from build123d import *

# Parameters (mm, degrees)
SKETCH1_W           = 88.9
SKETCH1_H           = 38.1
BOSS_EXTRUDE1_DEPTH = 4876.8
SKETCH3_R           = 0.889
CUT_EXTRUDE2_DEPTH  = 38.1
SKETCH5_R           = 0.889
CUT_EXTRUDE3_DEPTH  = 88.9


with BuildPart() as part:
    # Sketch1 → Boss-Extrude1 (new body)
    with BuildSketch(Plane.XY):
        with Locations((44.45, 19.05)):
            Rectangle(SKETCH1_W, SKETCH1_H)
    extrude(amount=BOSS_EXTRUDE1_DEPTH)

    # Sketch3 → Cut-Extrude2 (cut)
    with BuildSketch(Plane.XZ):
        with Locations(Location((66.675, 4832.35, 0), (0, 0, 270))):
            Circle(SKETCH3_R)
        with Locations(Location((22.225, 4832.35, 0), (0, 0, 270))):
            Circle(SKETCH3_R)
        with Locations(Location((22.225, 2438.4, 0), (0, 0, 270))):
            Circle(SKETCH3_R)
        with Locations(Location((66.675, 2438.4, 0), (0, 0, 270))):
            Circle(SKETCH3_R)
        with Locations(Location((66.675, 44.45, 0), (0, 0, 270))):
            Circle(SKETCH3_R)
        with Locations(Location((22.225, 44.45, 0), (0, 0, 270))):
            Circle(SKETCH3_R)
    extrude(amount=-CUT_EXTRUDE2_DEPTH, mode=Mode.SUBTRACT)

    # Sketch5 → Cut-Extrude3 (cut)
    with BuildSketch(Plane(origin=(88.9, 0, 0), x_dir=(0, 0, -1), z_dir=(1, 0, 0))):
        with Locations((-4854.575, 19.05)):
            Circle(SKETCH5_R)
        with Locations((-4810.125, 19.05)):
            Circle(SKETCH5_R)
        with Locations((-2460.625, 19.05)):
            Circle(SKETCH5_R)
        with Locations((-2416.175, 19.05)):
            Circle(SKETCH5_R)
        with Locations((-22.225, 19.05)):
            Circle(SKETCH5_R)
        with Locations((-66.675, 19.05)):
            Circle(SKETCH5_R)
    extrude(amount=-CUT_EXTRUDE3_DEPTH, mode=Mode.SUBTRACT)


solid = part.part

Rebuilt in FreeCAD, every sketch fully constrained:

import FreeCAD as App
import Part
import Sketcher
from FreeCAD import Vector
Q = App.Units.Quantity

doc = App.newDocument("Part")
body = doc.addObject("PartDesign::Body", "Body")

# Sketch on XY plane
sketch1 = body.newObject("Sketcher::SketchObject", "Sketch")
sketch1.AttachmentSupport = (doc.getObject("XY_Plane"), [""])
sketch1.MapMode = "FlatFace"
sketch1.addGeometry(Part.LineSegment(Vector(0, 38.1, 0), Vector(0, 0, 0)), False)
sketch1.addGeometry(Part.LineSegment(Vector(0, 0, 0), Vector(88.9, 0, 0)), False)
sketch1.addGeometry(Part.LineSegment(Vector(88.9, 0, 0), Vector(88.9, 38.1, 0)), False)
sketch1.addGeometry(Part.LineSegment(Vector(88.9, 38.1, 0), Vector(0, 38.1, 0)), False)
sketch1.addConstraint(Sketcher.Constraint("Coincident", 0, 2, 1, 1))
sketch1.addConstraint(Sketcher.Constraint("Coincident", 1, 2, 2, 1))
sketch1.addConstraint(Sketcher.Constraint("Coincident", 2, 2, 3, 1))
sketch1.addConstraint(Sketcher.Constraint("Coincident", 3, 2, 0, 1))
sketch1.addConstraint(Sketcher.Constraint("Vertical", 0))
sketch1.addConstraint(Sketcher.Constraint("Horizontal", 1))
sketch1.addConstraint(Sketcher.Constraint("Vertical", 2))
sketch1.addConstraint(Sketcher.Constraint("Horizontal", 3))
sketch1.addConstraint(Sketcher.Constraint("Coincident", 0, 2, -1, 1))
sketch1.addConstraint(Sketcher.Constraint("DistanceX", 1, 1, 1, 2, Q("3.5 in")))
sketch1.addConstraint(Sketcher.Constraint("DistanceY", 0, 2, 0, 1, Q("1.5 in")))
pad1 = body.newObject("PartDesign::Pad", "Pad")
pad1.Profile = sketch1
pad1.Length = Q("192 in")

# Sketch on XZ plane
sketch2 = body.newObject("Sketcher::SketchObject", "Sketch001")
sketch2.AttachmentSupport = (doc.getObject("XZ_Plane"), [""])
sketch2.MapMode = "FlatFace"
sketch2.addGeometry(Part.Circle(Vector(66.675, 4832.35, 0), Vector(0, 0, 1), 0.889), False)
sketch2.addGeometry(Part.Circle(Vector(22.225, 4832.35, 0), Vector(0, 0, 1), 0.889), False)
sketch2.addGeometry(Part.Circle(Vector(22.225, 2438.4, 0), Vector(0, 0, 1), 0.889), False)
sketch2.addGeometry(Part.Circle(Vector(66.675, 2438.4, 0), Vector(0, 0, 1), 0.889), False)
sketch2.addGeometry(Part.Circle(Vector(66.675, 44.45, 0), Vector(0, 0, 1), 0.889), False)
sketch2.addGeometry(Part.Circle(Vector(22.225, 44.45, 0), Vector(0, 0, 1), 0.889), False)
sketch2.addConstraint(Sketcher.Constraint("Equal", 0, 1))
sketch2.addConstraint(Sketcher.Constraint("Equal", 1, 2))
sketch2.addConstraint(Sketcher.Constraint("Equal", 2, 3))
sketch2.addConstraint(Sketcher.Constraint("Equal", 3, 4))
sketch2.addConstraint(Sketcher.Constraint("Equal", 4, 5))
sketch2.addConstraint(Sketcher.Constraint("Horizontal", 0, 3, 1, 3))
sketch2.addConstraint(Sketcher.Constraint("Horizontal", 2, 3, 3, 3))
sketch2.addConstraint(Sketcher.Constraint("Horizontal", 4, 3, 5, 3))
sketch2.addConstraint(Sketcher.Constraint("Vertical", 1, 3, 2, 3))
sketch2.addConstraint(Sketcher.Constraint("Vertical", 0, 3, 3, 3))
sketch2.addConstraint(Sketcher.Constraint("Vertical", 3, 3, 4, 3))
sketch2.addConstraint(Sketcher.Constraint("Vertical", 2, 3, 5, 3))
sketch2.addConstraint(Sketcher.Constraint("Diameter", 0, Q("0.07 in")))
sketch2.addConstraint(Sketcher.Constraint("DistanceY", -1, 1, 2, 3, Q("96 in")))
sketch2.addConstraint(Sketcher.Constraint("DistanceY", 4, 3, 0, 3, Q("188.5 in")))
sketch2.addConstraint(Sketcher.Constraint("DistanceY", -1, 1, 0, 3, Q("190.25 in")))
sketch2.addConstraint(Sketcher.Constraint("DistanceX", 1, 3, 0, 3, Q("1.75 in")))
sketch2.addConstraint(Sketcher.Constraint("DistanceX", -1, 1, 0, 3, Q("2.625 in")))
pocket1 = body.newObject("PartDesign::Pocket", "Pocket")
pocket1.Profile = sketch2
pocket1.Length = Q("1.5 in")

# Sketch on YZ plane
sketch3 = body.newObject("Sketcher::SketchObject", "Sketch002")
sketch3.AttachmentSupport = (doc.getObject("YZ_Plane"), [""])
sketch3.MapMode = "FlatFace"
sketch3.AttachmentOffset = App.Placement(Vector(0, 0, 3.5 * 25.4), App.Rotation())
sketch3.addGeometry(Part.Circle(Vector(19.05, 4854.575, 0), Vector(0, 0, 1), 0.889), False)
sketch3.addGeometry(Part.Circle(Vector(19.05, 4810.125, 0), Vector(0, 0, 1), 0.889), False)
sketch3.addGeometry(Part.Circle(Vector(19.05, 2460.625, 0), Vector(0, 0, 1), 0.889), False)
sketch3.addGeometry(Part.Circle(Vector(19.05, 2416.175, 0), Vector(0, 0, 1), 0.889), False)
sketch3.addGeometry(Part.Circle(Vector(19.05, 22.225, 0), Vector(0, 0, 1), 0.889), False)
sketch3.addGeometry(Part.Circle(Vector(19.05, 66.675, 0), Vector(0, 0, 1), 0.889), False)
sketch3.addConstraint(Sketcher.Constraint("Equal", 0, 1))
sketch3.addConstraint(Sketcher.Constraint("Equal", 1, 2))
sketch3.addConstraint(Sketcher.Constraint("Equal", 2, 3))
sketch3.addConstraint(Sketcher.Constraint("Equal", 3, 4))
sketch3.addConstraint(Sketcher.Constraint("Equal", 4, 5))
sketch3.addConstraint(Sketcher.Constraint("Vertical", 0, 3, 1, 3))
sketch3.addConstraint(Sketcher.Constraint("Vertical", 1, 3, 2, 3))
sketch3.addConstraint(Sketcher.Constraint("Vertical", 2, 3, 3, 3))
sketch3.addConstraint(Sketcher.Constraint("Vertical", 3, 3, 4, 3))
sketch3.addConstraint(Sketcher.Constraint("Vertical", 4, 3, 5, 3))
sketch3.addConstraint(Sketcher.Constraint("Diameter", 0, Q("0.07 in")))
sketch3.addConstraint(Sketcher.Constraint("DistanceY", 3, 3, 0, 3, Q("96 in")))
sketch3.addConstraint(Sketcher.Constraint("DistanceY", 4, 3, 2, 3, Q("96 in")))
sketch3.addConstraint(Sketcher.Constraint("DistanceY", 2, 3, 1, 3, Q("92.5 in")))
sketch3.addConstraint(Sketcher.Constraint("DistanceY", 5, 3, 3, 3, Q("92.5 in")))
sketch3.addConstraint(Sketcher.Constraint("DistanceX", -1, 1, 0, 3, Q("0.75 in")))
sketch3.addConstraint(Sketcher.Constraint("DistanceY", 1, 3, 0, 3, Q("1.75 in")))
sketch3.addConstraint(Sketcher.Constraint("DistanceY", -1, 1, 0, 3, Q("191.125 in")))
pocket2 = body.newObject("PartDesign::Pocket", "Pocket001")
pocket2.Profile = sketch3
pocket2.Length = Q("3.5 in")

doc.recompute()
